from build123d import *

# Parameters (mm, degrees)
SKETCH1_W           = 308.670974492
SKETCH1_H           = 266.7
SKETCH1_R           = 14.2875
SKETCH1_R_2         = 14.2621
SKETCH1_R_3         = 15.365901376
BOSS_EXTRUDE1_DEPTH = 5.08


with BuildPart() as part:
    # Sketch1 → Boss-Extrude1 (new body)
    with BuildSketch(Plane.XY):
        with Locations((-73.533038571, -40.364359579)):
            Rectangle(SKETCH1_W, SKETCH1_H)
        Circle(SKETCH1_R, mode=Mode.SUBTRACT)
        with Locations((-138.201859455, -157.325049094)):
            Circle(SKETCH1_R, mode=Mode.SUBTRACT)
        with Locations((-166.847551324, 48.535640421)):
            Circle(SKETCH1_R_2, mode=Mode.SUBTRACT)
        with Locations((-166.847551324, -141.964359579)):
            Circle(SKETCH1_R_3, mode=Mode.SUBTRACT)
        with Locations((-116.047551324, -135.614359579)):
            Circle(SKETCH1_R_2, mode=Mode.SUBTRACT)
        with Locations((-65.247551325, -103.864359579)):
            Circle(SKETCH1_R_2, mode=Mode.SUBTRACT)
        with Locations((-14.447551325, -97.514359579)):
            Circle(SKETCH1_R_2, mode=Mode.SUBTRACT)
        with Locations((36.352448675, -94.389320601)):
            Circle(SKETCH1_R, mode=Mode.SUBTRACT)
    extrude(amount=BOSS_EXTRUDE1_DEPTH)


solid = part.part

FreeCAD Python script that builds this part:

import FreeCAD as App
import Part
import Sketcher
Q = App.Units.Quantity

doc = App.newDocument("Part")
params = doc.addObject("Spreadsheet::Sheet", "Params")
for row, (alias, value) in enumerate([
    ("sketch1_diameter", "1.125 in"),
    ("sketch1_diameter2", "1.123 in"),
    ("sketch1_height", "10.5 in"),
    ("pad1_length", "0.2 in"),
], start=1):
    params.set(f"A{row}", alias)
    params.set(f"B{row}", "=" + value)
    params.setAlias(f"B{row}", alias)

body = doc.addObject("PartDesign::Body", "Body")

sketch1 = body.newObject("Sketcher::SketchObject", "Sketch")
sketch1.AttachmentSupport = (doc.getObject("XY_Plane"), [""])
sketch1.MapMode = "FlatFace"
sketch1.addGeometry(Part.LineSegment(App.Vector(-227.868526, 92.98564, 0), App.Vector(-227.868526, -173.71436, 0)), False)
sketch1.addGeometry(Part.LineSegment(App.Vector(-227.868526, -173.71436, 0), App.Vector(80.802449, -173.71436, 0)), False)
sketch1.addGeometry(Part.LineSegment(App.Vector(80.802449, -173.71436, 0), App.Vector(80.802449, 92.98564, 0)), False)
sketch1.addGeometry(Part.LineSegment(App.Vector(80.802449, 92.98564, 0), App.Vector(-227.868526, 92.98564, 0)), False)
sketch1.addGeometry(Part.Circle(App.Vector(-138.201859, -157.325049, 0), App.Vector(0, 0, 1), 14.2875), False)
sketch1.addGeometry(Part.Circle(App.Vector(-166.847551, -141.96436, 0), App.Vector(0, 0, 1), 15.365901), False)
sketch1.addGeometry(Part.Circle(App.Vector(-116.047551, -135.61436, 0), App.Vector(0, 0, 1), 14.2621), False)
sketch1.addGeometry(Part.Circle(App.Vector(-65.247551, -103.86436, 0), App.Vector(0, 0, 1), 14.2621), False)
sketch1.addGeometry(Part.Circle(App.Vector(-14.447551, -97.51436, 0), App.Vector(0, 0, 1), 14.2621), False)
sketch1.addGeometry(Part.Circle(App.Vector(36.352449, -94.389321, 0), App.Vector(0, 0, 1), 14.2875), False)
sketch1.addGeometry(Part.Circle(App.Vector(-166.847551, 48.53564, 0), App.Vector(0, 0, 1), 14.2621), False)
sketch1.addGeometry(Part.Circle(App.Vector(0, 0, 0), App.Vector(0, 0, 1), 14.2875), False)
sketch1.addConstraint(Sketcher.Constraint("Coincident", 0, 2, 1, 1))
sketch1.addConstraint(Sketcher.Constraint("Coincident", 1, 2, 2, 1))
sketch1.addConstraint(Sketcher.Constraint("Coincident", 2, 2, 3, 1))
sketch1.addConstraint(Sketcher.Constraint("Coincident", 3, 2, 0, 1))
sketch1.addConstraint(Sketcher.Constraint("Vertical", 0))
sketch1.addConstraint(Sketcher.Constraint("Horizontal", 1))
sketch1.addConstraint(Sketcher.Constraint("Vertical", 2))
sketch1.addConstraint(Sketcher.Constraint("Horizontal", 3))
sketch1.addConstraint(Sketcher.Constraint("Coincident", 11, 3, -1, 1))
sketch1.addConstraint(Sketcher.Constraint("Equal", 6, 7))
sketch1.addConstraint(Sketcher.Constraint("Equal", 7, 8))
sketch1.addConstraint(Sketcher.Constraint("Equal", 4, 9))
sketch1.addConstraint(Sketcher.Constraint("Equal", 8, 10))
sketch1.addConstraint(Sketcher.Constraint("Equal", 9, 11))
sketch1.addConstraint(Sketcher.Constraint("Vertical", 5, 3, 10, 3))
sketch1.addConstraint(Sketcher.Constraint("Diameter", 4, Q("1.125 in")))
sketch1.addConstraint(Sketcher.Constraint("Diameter", 6, Q("1.123 in")))
sketch1.addConstraint(Sketcher.Constraint("DistanceY", 0, 2, 0, 1, Q("10.5 in")))
sketch1.addConstraint(Sketcher.Constraint("DistanceX", 5, 3, 6, 3, Q("2 in")))
sketch1.addConstraint(Sketcher.Constraint("DistanceX", 6, 3, 7, 3, Q("2 in")))
sketch1.addConstraint(Sketcher.Constraint("DistanceX", 7, 3, 8, 3, Q("2 in")))
sketch1.addConstraint(Sketcher.Constraint("DistanceX", 8, 3, 9, 3, Q("2 in")))
sketch1.addConstraint(Sketcher.Constraint("DistanceY", 7, 3, 10, 3, Q("6 in")))
sketch1.addConstraint(Sketcher.Constraint("DistanceY", 0, 2, 8, 3, Q("3 in")))
sketch1.addConstraint(Sketcher.Constraint("DistanceY", 6, 3, 3, 2, Q("9 in")))
sketch1.addConstraint(Sketcher.Constraint("DistanceY", 5, 3, 7, 3, Q("1.5 in")))
sketch1.addConstraint(Sketcher.Constraint("DistanceY", 5, 3, 6, 3, Q("0.25 in")))
sketch1.addConstraint(Sketcher.Constraint("DistanceX", 9, 3, 1, 2, Q("1.75 in")))
sketch1.addConstraint(Sketcher.Constraint("Diameter", 5, Q("30.731803 mm")))
sketch1.addConstraint(Sketcher.Constraint("DistanceX", 1, 1, 1, 2, Q("308.670974 mm")))
sketch1.addConstraint(Sketcher.Constraint("DistanceX", 4, 3, -1, 1, Q("138.201859 mm")))
sketch1.addConstraint(Sketcher.Constraint("DistanceY", 4, 3, -1, 1, Q("157.325049 mm")))
sketch1.addConstraint(Sketcher.Constraint("DistanceX", 5, 3, -1, 1, Q("166.847551 mm")))
sketch1.addConstraint(Sketcher.Constraint("DistanceY", 5, 3, -1, 1, Q("141.96436 mm")))
sketch1.addConstraint(Sketcher.Constraint("DistanceY", 9, 3, -1, 1, Q("94.389321 mm")))
sketch1.setExpression("Constraints[15]", "Params.sketch1_diameter")
sketch1.setExpression("Constraints[16]", "Params.sketch1_diameter2")
sketch1.setExpression("Constraints[17]", "Params.sketch1_height")
pad1 = body.newObject("PartDesign::Pad", "Pad")
pad1.Profile = sketch1
pad1.setExpression("Length", "Params.pad1_length")

doc.recompute()
